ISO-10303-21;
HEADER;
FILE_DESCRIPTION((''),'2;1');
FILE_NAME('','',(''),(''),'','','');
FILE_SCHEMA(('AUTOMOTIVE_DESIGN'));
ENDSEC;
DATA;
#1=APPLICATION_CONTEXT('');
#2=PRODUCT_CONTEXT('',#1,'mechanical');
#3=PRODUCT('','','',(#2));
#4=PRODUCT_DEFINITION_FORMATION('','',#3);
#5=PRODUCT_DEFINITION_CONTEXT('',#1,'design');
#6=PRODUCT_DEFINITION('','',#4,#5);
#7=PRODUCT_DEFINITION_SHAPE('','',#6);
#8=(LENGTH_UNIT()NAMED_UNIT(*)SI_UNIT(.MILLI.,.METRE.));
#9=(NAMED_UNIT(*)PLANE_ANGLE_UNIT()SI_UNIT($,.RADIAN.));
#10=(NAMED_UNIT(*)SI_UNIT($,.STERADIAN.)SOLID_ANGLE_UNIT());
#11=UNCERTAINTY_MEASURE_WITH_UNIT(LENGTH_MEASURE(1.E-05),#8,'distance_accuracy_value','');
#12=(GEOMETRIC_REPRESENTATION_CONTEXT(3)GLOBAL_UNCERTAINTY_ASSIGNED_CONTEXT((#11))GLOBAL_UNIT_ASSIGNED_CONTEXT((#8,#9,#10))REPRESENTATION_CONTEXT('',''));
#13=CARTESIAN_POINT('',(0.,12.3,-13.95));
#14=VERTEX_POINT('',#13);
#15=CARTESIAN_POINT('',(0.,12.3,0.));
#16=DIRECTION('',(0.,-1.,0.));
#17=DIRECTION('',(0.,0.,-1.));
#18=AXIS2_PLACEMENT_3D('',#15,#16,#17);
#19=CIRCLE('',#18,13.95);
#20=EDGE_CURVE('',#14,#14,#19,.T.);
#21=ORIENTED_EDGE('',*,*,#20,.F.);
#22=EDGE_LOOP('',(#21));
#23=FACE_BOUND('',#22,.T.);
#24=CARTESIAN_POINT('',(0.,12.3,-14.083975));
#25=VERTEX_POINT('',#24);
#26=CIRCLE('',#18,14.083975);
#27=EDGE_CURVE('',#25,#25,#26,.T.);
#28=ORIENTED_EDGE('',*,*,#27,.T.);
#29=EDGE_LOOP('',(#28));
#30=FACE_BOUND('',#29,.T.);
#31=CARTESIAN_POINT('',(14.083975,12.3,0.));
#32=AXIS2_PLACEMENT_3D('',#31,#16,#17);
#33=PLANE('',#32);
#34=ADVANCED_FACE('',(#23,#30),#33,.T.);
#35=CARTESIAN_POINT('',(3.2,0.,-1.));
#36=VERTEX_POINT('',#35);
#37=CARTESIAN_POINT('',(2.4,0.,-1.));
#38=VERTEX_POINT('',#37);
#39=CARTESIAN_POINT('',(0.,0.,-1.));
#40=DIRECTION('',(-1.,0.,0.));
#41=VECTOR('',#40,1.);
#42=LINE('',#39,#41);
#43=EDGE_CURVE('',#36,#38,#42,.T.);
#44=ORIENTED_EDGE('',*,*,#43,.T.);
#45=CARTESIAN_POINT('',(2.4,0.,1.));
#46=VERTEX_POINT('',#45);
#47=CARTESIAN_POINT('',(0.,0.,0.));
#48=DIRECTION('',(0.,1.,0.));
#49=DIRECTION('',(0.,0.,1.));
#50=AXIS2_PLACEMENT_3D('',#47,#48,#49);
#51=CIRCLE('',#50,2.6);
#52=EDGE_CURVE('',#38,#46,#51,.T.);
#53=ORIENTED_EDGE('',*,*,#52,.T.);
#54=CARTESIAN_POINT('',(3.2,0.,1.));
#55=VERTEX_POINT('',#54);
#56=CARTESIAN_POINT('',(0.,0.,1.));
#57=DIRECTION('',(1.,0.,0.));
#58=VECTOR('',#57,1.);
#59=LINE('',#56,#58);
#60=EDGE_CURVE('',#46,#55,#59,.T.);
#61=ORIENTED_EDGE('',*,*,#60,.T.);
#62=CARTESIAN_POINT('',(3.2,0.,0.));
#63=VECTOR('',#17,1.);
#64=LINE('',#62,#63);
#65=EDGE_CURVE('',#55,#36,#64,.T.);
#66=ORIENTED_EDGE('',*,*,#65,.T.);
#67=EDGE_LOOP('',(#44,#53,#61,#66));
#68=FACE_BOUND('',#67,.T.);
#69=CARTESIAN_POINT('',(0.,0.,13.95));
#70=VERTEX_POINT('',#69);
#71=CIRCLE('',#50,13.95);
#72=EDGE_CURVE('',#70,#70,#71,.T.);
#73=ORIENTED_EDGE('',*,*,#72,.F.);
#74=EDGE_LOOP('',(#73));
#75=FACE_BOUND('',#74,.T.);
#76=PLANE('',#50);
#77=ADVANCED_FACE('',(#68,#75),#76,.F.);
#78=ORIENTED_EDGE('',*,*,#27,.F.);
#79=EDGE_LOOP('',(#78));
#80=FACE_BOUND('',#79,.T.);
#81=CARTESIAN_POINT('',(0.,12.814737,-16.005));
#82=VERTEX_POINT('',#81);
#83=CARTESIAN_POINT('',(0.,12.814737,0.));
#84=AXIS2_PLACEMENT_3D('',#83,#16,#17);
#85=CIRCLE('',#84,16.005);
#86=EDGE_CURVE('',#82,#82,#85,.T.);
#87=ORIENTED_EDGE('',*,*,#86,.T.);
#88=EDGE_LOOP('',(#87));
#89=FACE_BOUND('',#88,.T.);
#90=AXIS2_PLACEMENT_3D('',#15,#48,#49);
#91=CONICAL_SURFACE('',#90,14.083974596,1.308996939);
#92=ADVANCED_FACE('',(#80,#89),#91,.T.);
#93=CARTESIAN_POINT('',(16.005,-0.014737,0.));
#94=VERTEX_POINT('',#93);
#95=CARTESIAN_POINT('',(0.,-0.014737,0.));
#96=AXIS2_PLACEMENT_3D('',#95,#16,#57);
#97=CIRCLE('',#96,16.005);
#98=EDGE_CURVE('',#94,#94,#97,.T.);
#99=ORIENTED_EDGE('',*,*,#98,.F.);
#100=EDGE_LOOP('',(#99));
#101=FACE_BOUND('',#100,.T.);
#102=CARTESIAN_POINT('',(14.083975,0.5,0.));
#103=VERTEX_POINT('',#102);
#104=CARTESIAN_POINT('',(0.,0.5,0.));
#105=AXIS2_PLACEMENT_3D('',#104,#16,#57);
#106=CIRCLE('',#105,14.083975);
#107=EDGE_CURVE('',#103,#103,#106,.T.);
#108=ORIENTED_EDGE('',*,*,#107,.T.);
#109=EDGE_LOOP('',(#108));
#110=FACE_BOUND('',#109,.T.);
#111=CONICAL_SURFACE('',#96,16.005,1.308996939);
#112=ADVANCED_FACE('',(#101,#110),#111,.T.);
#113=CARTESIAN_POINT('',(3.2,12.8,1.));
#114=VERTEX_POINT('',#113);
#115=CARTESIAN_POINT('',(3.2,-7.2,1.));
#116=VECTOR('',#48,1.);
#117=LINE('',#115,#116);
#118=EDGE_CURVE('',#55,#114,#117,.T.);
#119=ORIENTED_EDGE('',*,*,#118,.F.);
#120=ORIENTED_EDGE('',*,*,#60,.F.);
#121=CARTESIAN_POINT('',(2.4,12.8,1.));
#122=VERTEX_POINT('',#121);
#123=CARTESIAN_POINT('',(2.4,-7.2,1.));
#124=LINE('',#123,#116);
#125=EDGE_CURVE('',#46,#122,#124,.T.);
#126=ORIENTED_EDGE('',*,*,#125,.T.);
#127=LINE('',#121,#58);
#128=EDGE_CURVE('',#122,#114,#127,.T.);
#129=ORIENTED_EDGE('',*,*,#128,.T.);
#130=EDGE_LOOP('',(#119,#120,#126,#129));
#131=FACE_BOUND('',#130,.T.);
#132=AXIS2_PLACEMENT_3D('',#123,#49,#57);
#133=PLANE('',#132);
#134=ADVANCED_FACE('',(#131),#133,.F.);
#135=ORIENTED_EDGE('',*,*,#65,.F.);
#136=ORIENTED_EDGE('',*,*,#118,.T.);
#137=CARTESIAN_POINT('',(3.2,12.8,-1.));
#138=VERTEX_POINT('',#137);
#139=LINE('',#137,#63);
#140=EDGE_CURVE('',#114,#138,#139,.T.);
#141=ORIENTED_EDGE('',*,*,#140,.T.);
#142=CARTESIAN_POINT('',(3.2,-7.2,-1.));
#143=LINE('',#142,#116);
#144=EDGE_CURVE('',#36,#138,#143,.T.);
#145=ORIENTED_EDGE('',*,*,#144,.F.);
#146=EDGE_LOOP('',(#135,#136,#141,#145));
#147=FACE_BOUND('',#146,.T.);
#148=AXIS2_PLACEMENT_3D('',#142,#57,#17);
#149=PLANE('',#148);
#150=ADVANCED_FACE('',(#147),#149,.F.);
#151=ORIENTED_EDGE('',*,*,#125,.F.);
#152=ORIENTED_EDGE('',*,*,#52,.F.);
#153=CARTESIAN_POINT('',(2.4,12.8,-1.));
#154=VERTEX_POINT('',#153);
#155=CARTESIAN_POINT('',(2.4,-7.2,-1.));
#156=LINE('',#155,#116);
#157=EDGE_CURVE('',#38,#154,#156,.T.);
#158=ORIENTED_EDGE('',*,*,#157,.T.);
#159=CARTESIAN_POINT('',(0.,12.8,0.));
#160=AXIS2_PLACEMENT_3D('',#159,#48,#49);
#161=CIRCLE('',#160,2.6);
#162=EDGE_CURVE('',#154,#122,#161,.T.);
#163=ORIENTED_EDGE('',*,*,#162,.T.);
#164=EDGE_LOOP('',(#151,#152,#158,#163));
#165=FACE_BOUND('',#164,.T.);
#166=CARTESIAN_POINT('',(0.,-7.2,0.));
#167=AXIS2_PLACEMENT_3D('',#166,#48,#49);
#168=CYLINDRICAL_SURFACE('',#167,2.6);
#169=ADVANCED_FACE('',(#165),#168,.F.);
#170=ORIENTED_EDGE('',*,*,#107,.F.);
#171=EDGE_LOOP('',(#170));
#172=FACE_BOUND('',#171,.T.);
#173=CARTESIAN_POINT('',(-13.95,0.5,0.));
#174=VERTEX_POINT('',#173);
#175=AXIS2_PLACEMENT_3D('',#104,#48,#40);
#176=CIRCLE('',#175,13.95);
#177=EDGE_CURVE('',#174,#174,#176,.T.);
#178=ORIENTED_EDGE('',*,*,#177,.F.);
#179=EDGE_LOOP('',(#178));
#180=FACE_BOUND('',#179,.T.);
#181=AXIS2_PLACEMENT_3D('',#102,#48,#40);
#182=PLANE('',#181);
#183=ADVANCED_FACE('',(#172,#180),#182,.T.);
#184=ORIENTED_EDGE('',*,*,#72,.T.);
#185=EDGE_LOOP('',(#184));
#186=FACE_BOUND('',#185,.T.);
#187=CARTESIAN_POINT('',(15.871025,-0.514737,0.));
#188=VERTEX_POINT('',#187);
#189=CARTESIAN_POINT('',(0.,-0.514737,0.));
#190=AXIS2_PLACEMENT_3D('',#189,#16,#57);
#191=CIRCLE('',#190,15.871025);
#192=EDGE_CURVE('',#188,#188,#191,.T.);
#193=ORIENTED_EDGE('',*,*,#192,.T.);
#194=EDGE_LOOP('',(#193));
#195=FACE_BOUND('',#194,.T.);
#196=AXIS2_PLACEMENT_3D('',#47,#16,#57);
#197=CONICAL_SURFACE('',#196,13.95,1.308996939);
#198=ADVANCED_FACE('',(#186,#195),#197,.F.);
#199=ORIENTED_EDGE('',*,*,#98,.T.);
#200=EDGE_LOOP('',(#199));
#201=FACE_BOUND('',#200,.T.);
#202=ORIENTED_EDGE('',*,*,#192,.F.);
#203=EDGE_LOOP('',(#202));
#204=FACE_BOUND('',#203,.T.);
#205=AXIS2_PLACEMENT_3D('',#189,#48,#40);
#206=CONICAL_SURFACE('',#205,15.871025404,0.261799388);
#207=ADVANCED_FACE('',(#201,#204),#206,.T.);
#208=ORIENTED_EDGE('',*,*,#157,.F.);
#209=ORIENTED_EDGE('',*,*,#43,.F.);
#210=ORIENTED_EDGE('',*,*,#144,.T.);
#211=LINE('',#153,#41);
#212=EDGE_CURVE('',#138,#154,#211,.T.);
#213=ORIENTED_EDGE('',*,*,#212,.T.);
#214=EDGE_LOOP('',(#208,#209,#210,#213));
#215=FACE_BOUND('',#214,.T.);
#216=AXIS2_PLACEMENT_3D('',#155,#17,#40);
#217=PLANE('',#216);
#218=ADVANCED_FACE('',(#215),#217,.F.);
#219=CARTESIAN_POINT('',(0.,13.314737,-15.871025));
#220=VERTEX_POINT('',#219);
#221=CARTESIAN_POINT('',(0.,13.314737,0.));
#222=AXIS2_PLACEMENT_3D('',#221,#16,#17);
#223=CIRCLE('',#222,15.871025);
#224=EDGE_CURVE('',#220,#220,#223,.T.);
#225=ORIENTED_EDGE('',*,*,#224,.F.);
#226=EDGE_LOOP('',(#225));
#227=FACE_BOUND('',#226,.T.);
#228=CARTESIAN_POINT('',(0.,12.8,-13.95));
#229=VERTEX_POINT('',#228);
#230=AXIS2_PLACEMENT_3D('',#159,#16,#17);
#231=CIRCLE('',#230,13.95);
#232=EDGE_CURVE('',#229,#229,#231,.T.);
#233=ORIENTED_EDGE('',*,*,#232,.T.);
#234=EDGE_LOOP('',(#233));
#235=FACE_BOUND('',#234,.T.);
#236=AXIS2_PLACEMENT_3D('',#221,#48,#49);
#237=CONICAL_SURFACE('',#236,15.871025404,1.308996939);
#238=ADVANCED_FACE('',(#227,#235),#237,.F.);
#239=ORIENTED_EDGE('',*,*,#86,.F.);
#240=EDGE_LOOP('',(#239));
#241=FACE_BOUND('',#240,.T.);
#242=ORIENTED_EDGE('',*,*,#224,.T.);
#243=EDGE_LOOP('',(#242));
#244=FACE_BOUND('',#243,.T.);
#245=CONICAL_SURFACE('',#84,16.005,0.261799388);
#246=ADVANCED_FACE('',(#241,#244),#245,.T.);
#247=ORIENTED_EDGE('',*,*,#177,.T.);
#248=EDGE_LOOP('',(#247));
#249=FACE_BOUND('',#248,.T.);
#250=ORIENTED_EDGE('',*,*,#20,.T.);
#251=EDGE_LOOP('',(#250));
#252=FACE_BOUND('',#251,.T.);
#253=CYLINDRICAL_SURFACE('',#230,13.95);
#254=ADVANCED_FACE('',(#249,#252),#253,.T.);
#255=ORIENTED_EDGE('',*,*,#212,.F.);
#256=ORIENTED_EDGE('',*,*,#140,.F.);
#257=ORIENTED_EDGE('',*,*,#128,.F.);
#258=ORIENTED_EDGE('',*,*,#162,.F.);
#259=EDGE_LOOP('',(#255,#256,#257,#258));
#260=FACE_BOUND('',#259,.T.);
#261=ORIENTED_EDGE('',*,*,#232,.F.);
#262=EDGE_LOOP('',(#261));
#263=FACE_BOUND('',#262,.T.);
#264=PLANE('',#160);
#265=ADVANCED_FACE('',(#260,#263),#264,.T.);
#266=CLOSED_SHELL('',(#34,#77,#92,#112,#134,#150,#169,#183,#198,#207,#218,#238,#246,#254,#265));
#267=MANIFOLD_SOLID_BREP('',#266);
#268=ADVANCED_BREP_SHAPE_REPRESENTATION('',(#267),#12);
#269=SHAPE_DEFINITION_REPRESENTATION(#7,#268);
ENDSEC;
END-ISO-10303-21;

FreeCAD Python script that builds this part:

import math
import FreeCAD as App
import Part
import Sketcher

V = App.Vector
Q = App.Units.Quantity


def add_polygon(sketch, points):
    """Adds a closed chain of lines whose ends are joined by coincident constraints."""
    first, n = sketch.GeometryCount, len(points)
    for a, b in zip(points, points[1:] + points[:1]):
        sketch.addGeometry(Part.LineSegment(App.Vector(*a, 0), App.Vector(*b, 0)), False)
    for i in range(n):
        sketch.addConstraint(Sketcher.Constraint("Coincident", first + i, 2, first + (i + 1) % n, 1))

doc = App.newDocument("Part")
body = doc.addObject("PartDesign::Body", "Body")

# Sketch on XZ plane
sketch1 = body.newObject("Sketcher::SketchObject", "Sketch")
sketch1.AttachmentSupport = (doc.getObject("XZ_Plane"), [""])
sketch1.MapMode = "FlatFace"
sketch1.addGeometry(Part.Circle(V(0, 0, 0), V(0, 0, 1), 14), False)
sketch1.addConstraint([
    Sketcher.Constraint("Coincident", 0, 3, -1, 1),
    Sketcher.Constraint("Diameter", 0, 27.9),
])
pad1 = body.newObject("PartDesign::Pad", "Pad")
pad1.Profile = sketch1
pad1.Length = 12.8
pad1.Reversed = True

# Sketch on XZ plane
sketch2 = body.newObject("Sketcher::SketchObject", "Sketch001")
sketch2.AttachmentSupport = (doc.getObject("XZ_Plane"), [""])
sketch2.MapMode = "FlatFace"
sketch2.AttachmentOffset = App.Placement(V(0, 0, -12.8), App.Rotation())
sketch2.addGeometry([
    Part.LineSegment(V(3.2, -1, 0), V(2.4, -1, 0)),
    Part.ArcOfCircle(Part.Circle(V(0, 0, 0), V(0, 0, 1), 2.6), math.radians(23), math.radians(337)),
    Part.LineSegment(V(2.4, 1, 0), V(3.2, 1, 0)),
    Part.LineSegment(V(3.2, 1, 0), V(3.2, -1, 0)),
], False)
sketch2.addConstraint([
    Sketcher.Constraint("Coincident", 0, 2, 1, 2),
    Sketcher.Constraint("Coincident", 1, 1, 2, 1),
    Sketcher.Constraint("Coincident", 2, 2, 3, 1),
    Sketcher.Constraint("Coincident", 3, 2, 0, 1),
    Sketcher.Constraint("Horizontal", 0),
    Sketcher.Constraint("Horizontal", 2),
    Sketcher.Constraint("Vertical", 3),
    Sketcher.Constraint("Coincident", 1, 3, -1, 1),
    Sketcher.Constraint("Vertical", 0, 2, 1, 1),
    Sketcher.Constraint("Radius", 1, 2.6),
    Sketcher.Constraint("DistanceY", 3, 2, 3, 1, 2.0),
    Sketcher.Constraint("DistanceX", 0, 2, 0, 1, 0.8),
])
pocket1 = body.newObject("PartDesign::Pocket", "Pocket")
pocket1.Profile = sketch2
pocket1.Length = 20
pocket1.Reversed = True

# Sketch on XY plane
sketch3 = body.newObject("Sketcher::SketchObject", "Sketch002")
sketch3.AttachmentSupport = (doc.getObject("XY_Plane"), [""])
sketch3.MapMode = "FlatFace"
add_polygon(sketch3, [(12.1, 12.8), (12.1, 12.3), (14.1, 12.3), (16, 12.8), (15.9, 13.3), (13.9, 12.8)])  # lines 0-5
sketch3.addConstraint([
    Sketcher.Constraint("Vertical", 0),
    Sketcher.Constraint("Horizontal", 1),
    Sketcher.Constraint("Horizontal", 5),
    Sketcher.Constraint("Perpendicular", 2, 3),
    Sketcher.Constraint("Perpendicular", 3, 4),
    Sketcher.Constraint("Equal", 2, 4),
    Sketcher.Constraint("Angle", 2, Q("15 deg")),
    Sketcher.Constraint("DistanceY", 0, 2, 0, 1, 0.5),
    Sketcher.Constraint("DistanceY", -1, 1, 0, 2, 12.3),
    Sketcher.Constraint("DistanceX", -1, 1, 4, 2, 13.95),
    Sketcher.Constraint("DistanceX", -1, 1, 2, 2, 16.005),
    Sketcher.Constraint("DistanceX", 5, 2, 5, 1, 1.80875),
])
revolution = body.newObject("PartDesign::Revolution", "Revolution")
revolution.Profile = sketch3
revolution.ReferenceAxis = (sketch3, ["V_Axis"])
revolution.Angle = 360

# Sketch on XY plane
sketch4 = body.newObject("Sketcher::SketchObject", "Sketch003")
sketch4.AttachmentSupport = (doc.getObject("XY_Plane"), [""])
sketch4.MapMode = "FlatFace"
add_polygon(sketch4, [(12.1, 0.5), (12.1, 0), (13.9, 0), (15.9, -0.5), (16, 0), (14.1, 0.5)])  # lines 0-5
sketch4.addConstraint([
    Sketcher.Constraint("Vertical", 0),
    Sketcher.Constraint("Horizontal", 1),
    Sketcher.Constraint("Horizontal", 5),
    Sketcher.Constraint("PointOnObject", 0, 2, -1),
    Sketcher.Constraint("Perpendicular", 2, 3),
    Sketcher.Constraint("Perpendicular", 3, 4),
    Sketcher.Constraint("Equal", 2, 4),
    Sketcher.Constraint("Angle", 2, Q("-15 deg")),
    Sketcher.Constraint("DistanceY", 0, 2, 0, 1, 0.5),
    Sketcher.Constraint("DistanceX", -1, 1, 1, 2, 13.95),
    Sketcher.Constraint("DistanceX", -1, 1, 3, 2, 16.005),
    Sketcher.Constraint("DistanceX", 1, 1, 1, 2, 1.80875),
])
revolution2 = body.newObject("PartDesign::Revolution", "Revolution001")
revolution2.Profile = sketch4
revolution2.ReferenceAxis = (sketch4, ["V_Axis"])
revolution2.Angle = 360

doc.recompute()
